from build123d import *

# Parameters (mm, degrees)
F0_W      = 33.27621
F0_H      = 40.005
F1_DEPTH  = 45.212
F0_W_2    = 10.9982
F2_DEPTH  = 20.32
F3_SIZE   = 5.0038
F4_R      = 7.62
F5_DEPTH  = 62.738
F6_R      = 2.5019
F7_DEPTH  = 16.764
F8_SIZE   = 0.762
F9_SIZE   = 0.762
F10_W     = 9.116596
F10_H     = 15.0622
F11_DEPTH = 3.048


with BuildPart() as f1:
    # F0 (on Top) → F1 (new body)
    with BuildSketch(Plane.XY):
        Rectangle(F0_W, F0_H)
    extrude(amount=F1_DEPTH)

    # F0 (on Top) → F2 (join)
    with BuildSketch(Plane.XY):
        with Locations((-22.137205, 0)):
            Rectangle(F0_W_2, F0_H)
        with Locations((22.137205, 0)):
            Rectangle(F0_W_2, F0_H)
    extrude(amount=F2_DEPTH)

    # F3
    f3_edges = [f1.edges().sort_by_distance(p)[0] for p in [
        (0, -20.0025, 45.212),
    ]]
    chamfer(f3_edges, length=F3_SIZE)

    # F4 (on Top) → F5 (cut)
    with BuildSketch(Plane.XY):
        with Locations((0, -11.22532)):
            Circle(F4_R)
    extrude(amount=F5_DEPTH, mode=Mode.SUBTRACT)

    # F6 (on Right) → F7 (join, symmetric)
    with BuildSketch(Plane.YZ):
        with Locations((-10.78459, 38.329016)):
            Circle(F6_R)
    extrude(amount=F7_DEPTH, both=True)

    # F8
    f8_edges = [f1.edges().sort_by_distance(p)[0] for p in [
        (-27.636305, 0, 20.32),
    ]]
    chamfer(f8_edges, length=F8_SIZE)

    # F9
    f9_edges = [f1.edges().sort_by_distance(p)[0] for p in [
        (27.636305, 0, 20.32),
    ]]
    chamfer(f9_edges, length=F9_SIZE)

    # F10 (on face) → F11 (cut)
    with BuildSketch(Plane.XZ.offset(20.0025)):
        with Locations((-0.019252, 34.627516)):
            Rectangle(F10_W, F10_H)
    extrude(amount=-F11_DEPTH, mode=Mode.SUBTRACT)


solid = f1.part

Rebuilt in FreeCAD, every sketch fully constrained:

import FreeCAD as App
import Part
import Sketcher
Q = App.Units.Quantity


def edges_at(feature, points):
    """Names of the edges that pass closest to the given points."""
    edges = feature.Shape.Edges
    near = lambda p: min(range(len(edges)), key=lambda i: edges[i].distToShape(Part.Vertex(*p))[0])
    return sorted({f"Edge{near(p) + 1}" for p in points})

doc = App.newDocument("Part")
params = doc.addObject("Spreadsheet::Sheet", "Params")
for row, (alias, value) in enumerate([
    ("sketch1_height", "1.575 in"),
    ("pad1_length", "1.78 in"),
    ("sketch2_width", "0.433 in"),
    ("sketch2_height", "1.575 in"),
    ("pad2_length", "0.8 in"),
    ("chamfer_size", "0.197 in"),
    ("sketch3_diameter", "0.6 in"),
    ("pocket1_length", "2.47 in"),
    ("sketch4_diameter", "0.197 in"),
    ("pad3_length", "1.32 in"),
    ("chamfer2_size", "0.03 in"),
    ("chamfer3_size", "0.03 in"),
    ("sketch5_height", "0.593 in"),
    ("pocket2_length", "0.12 in"),
], start=1):
    params.set(f"A{row}", alias)
    params.set(f"B{row}", "=" + value)
    params.setAlias(f"B{row}", alias)

body = doc.addObject("PartDesign::Body", "Body")

# Sketch on XY plane
sketch1 = body.newObject("Sketcher::SketchObject", "Sketch")
sketch1.AttachmentSupport = (doc.getObject("XY_Plane"), [""])
sketch1.MapMode = "FlatFace"
sketch1.addGeometry([
    Part.LineSegment(App.Vector(-17, 20, 0), App.Vector(-17, -20, 0)),
    Part.LineSegment(App.Vector(-17, -20, 0), App.Vector(17, -20, 0)),
    Part.LineSegment(App.Vector(17, -20, 0), App.Vector(17, 20, 0)),
    Part.LineSegment(App.Vector(17, 20, 0), App.Vector(-17, 20, 0)),
], False)
sketch1.addConstraint([
    Sketcher.Constraint("Coincident", 0, 2, 1, 1),
    Sketcher.Constraint("Coincident", 1, 2, 2, 1),
    Sketcher.Constraint("Coincident", 2, 2, 3, 1),
    Sketcher.Constraint("Coincident", 3, 2, 0, 1),
    Sketcher.Constraint("Vertical", 0),
    Sketcher.Constraint("Horizontal", 1),
    Sketcher.Constraint("Vertical", 2),
    Sketcher.Constraint("Horizontal", 3),
    Sketcher.Constraint("Symmetric", 0, 2, 2, 2, -1, 1),
    Sketcher.Constraint("DistanceY", 0, 2, 0, 1, Q("1.575 in")),
    Sketcher.Constraint("DistanceX", 1, 1, 1, 2, 33.27621),
])
sketch1.setExpression("Constraints[9]", "Params.sketch1_height")
pad1 = body.newObject("PartDesign::Pad", "Pad")
pad1.Profile = sketch1
pad1.setExpression("Length", "Params.pad1_length")

# Sketch on XY plane
sketch2 = body.newObject("Sketcher::SketchObject", "Sketch001")
sketch2.AttachmentSupport = (doc.getObject("XY_Plane"), [""])
sketch2.MapMode = "FlatFace"
sketch2.addGeometry([
    Part.LineSegment(App.Vector(-28, 20, 0), App.Vector(-28, -20, 0)),  # 0
    Part.LineSegment(App.Vector(-28, -20, 0), App.Vector(-17, -20, 0)),  # 1
    Part.LineSegment(App.Vector(-17, -20, 0), App.Vector(-17, 20, 0)),  # 2
    Part.LineSegment(App.Vector(-17, 20, 0), App.Vector(-28, 20, 0)),  # 3
    Part.LineSegment(App.Vector(17, 20, 0), App.Vector(17, -20, 0)),  # 4
    Part.LineSegment(App.Vector(17, -20, 0), App.Vector(28, -20, 0)),  # 5
    Part.LineSegment(App.Vector(28, -20, 0), App.Vector(28, 20, 0)),  # 6
    Part.LineSegment(App.Vector(28, 20, 0), App.Vector(17, 20, 0)),  # 7
], False)
sketch2.addConstraint([
    Sketcher.Constraint("Coincident", 0, 2, 1, 1),
    Sketcher.Constraint("Coincident", 1, 2, 2, 1),
    Sketcher.Constraint("Coincident", 2, 2, 3, 1),
    Sketcher.Constraint("Coincident", 3, 2, 0, 1),
    Sketcher.Constraint("Coincident", 4, 2, 5, 1),
    Sketcher.Constraint("Coincident", 5, 2, 6, 1),
    Sketcher.Constraint("Coincident", 6, 2, 7, 1),
    Sketcher.Constraint("Coincident", 7, 2, 4, 1),
    Sketcher.Constraint("Vertical", 0),
    Sketcher.Constraint("Horizontal", 1),
    Sketcher.Constraint("Vertical", 2),
    Sketcher.Constraint("Horizontal", 3),
    Sketcher.Constraint("Vertical", 4),
    Sketcher.Constraint("Horizontal", 5),
    Sketcher.Constraint("Vertical", 6),
    Sketcher.Constraint("Horizontal", 7),
    Sketcher.Constraint("Symmetric", 2, 2, 4, 2, -1, 1),
    Sketcher.Constraint("Symmetric", 0, 2, 6, 2, -1, 1),
    Sketcher.Constraint("Horizontal", 1, 2, 4, 2),
    Sketcher.Constraint("DistanceX", 1, 1, 1, 2, Q("0.433 in")),
    Sketcher.Constraint("DistanceY", 0, 2, 0, 1, Q("1.575 in")),
    Sketcher.Constraint("DistanceX", 1, 2, 4, 2, 33.27621),
])
sketch2.setExpression("Constraints[19]", "Params.sketch2_width")
sketch2.setExpression("Constraints[20]", "Params.sketch2_height")
pad2 = body.newObject("PartDesign::Pad", "Pad001")
pad2.Profile = sketch2
pad2.setExpression("Length", "Params.pad2_length")
doc.recompute()

chamfer = body.newObject("PartDesign::Chamfer", "Chamfer")
chamfer.Base = (pad2, edges_at(pad2, [(0, -20.003, 45.212)]))
chamfer.setExpression("Size", "Params.chamfer_size")

# Sketch on XY plane
sketch3 = body.newObject("Sketcher::SketchObject", "Sketch002")
sketch3.AttachmentSupport = (doc.getObject("XY_Plane"), [""])
sketch3.MapMode = "FlatFace"
sketch3.addGeometry(Part.Circle(App.Vector(0, -11, 0), App.Vector(0, 0, 1), 8), False)
sketch3.addConstraint([
    Sketcher.Constraint("PointOnObject", 0, 3, -2),
    Sketcher.Constraint("Diameter", 0, Q("0.6 in")),
    Sketcher.Constraint("DistanceY", 0, 3, -1, 1, 11.22532),
])
sketch3.setExpression("Constraints[1]", "Params.sketch3_diameter")
pocket1 = body.newObject("PartDesign::Pocket", "Pocket")
pocket1.Profile = sketch3
pocket1.setExpression("Length", "Params.pocket1_length")
pocket1.Reversed = True

# Sketch on YZ plane
sketch4 = body.newObject("Sketcher::SketchObject", "Sketch003")
sketch4.AttachmentSupport = (doc.getObject("YZ_Plane"), [""])
sketch4.MapMode = "FlatFace"
sketch4.addGeometry(Part.Circle(App.Vector(-10.8, 38.3, 0), App.Vector(0, 0, 1), 2.5), False)
sketch4.addConstraint([
    Sketcher.Constraint("Diameter", 0, Q("0.197 in")),
    Sketcher.Constraint("DistanceX", 0, 3, -1, 1, 10.78459),
    Sketcher.Constraint("DistanceY", -1, 1, 0, 3, 38.329016),
])
sketch4.setExpression("Constraints[0]", "Params.sketch4_diameter")
pad3 = body.newObject("PartDesign::Pad", "Pad002")
pad3.Profile = sketch4
pad3.setExpression("Length", "Params.pad3_length")
pad3.Midplane = True
doc.recompute()

chamfer2 = body.newObject("PartDesign::Chamfer", "Chamfer001")
chamfer2.Base = (pad3, edges_at(pad3, [(-27.636, 0, 20.32)]))
chamfer2.setExpression("Size", "Params.chamfer2_size")
doc.recompute()

chamfer3 = body.newObject("PartDesign::Chamfer", "Chamfer002")
chamfer3.Base = (chamfer2, edges_at(chamfer2, [(27.636, 0, 20.32)]))
chamfer3.setExpression("Size", "Params.chamfer3_size")

# Sketch on XZ plane
sketch5 = body.newObject("Sketcher::SketchObject", "Sketch004")
sketch5.AttachmentSupport = (doc.getObject("XZ_Plane"), [""])
sketch5.MapMode = "FlatFace"
sketch5.AttachmentOffset = App.Placement(App.Vector(0, 0, 0.7875 * 25.4), App.Rotation())
sketch5.addGeometry([
    Part.LineSegment(App.Vector(-5, 42, 0), App.Vector(-5, 27, 0)),
    Part.LineSegment(App.Vector(-5, 27, 0), App.Vector(5, 27, 0)),
    Part.LineSegment(App.Vector(5, 27, 0), App.Vector(5, 42, 0)),
    Part.LineSegment(App.Vector(5, 42, 0), App.Vector(-5, 42, 0)),
], False)
sketch5.addConstraint([
    Sketcher.Constraint("Coincident", 0, 2, 1, 1),
    Sketcher.Constraint("Coincident", 1, 2, 2, 1),
    Sketcher.Constraint("Coincident", 2, 2, 3, 1),
    Sketcher.Constraint("Coincident", 3, 2, 0, 1),
    Sketcher.Constraint("Vertical", 0),
    Sketcher.Constraint("Horizontal", 1),
    Sketcher.Constraint("Vertical", 2),
    Sketcher.Constraint("Horizontal", 3),
    Sketcher.Constraint("DistanceY", 0, 2, 0, 1, Q("0.593 in")),
    Sketcher.Constraint("DistanceX", 1, 1, 1, 2, 9.116596),
    Sketcher.Constraint("DistanceX", 0, 2, -1, 1, 4.57755),
    Sketcher.Constraint("DistanceY", -1, 1, 0, 2, 27.096416),
])
sketch5.setExpression("Constraints[8]", "Params.sketch5_height")
pocket2 = body.newObject("PartDesign::Pocket", "Pocket001")
pocket2.Profile = sketch5
pocket2.setExpression("Length", "Params.pocket2_length")

doc.recompute()
